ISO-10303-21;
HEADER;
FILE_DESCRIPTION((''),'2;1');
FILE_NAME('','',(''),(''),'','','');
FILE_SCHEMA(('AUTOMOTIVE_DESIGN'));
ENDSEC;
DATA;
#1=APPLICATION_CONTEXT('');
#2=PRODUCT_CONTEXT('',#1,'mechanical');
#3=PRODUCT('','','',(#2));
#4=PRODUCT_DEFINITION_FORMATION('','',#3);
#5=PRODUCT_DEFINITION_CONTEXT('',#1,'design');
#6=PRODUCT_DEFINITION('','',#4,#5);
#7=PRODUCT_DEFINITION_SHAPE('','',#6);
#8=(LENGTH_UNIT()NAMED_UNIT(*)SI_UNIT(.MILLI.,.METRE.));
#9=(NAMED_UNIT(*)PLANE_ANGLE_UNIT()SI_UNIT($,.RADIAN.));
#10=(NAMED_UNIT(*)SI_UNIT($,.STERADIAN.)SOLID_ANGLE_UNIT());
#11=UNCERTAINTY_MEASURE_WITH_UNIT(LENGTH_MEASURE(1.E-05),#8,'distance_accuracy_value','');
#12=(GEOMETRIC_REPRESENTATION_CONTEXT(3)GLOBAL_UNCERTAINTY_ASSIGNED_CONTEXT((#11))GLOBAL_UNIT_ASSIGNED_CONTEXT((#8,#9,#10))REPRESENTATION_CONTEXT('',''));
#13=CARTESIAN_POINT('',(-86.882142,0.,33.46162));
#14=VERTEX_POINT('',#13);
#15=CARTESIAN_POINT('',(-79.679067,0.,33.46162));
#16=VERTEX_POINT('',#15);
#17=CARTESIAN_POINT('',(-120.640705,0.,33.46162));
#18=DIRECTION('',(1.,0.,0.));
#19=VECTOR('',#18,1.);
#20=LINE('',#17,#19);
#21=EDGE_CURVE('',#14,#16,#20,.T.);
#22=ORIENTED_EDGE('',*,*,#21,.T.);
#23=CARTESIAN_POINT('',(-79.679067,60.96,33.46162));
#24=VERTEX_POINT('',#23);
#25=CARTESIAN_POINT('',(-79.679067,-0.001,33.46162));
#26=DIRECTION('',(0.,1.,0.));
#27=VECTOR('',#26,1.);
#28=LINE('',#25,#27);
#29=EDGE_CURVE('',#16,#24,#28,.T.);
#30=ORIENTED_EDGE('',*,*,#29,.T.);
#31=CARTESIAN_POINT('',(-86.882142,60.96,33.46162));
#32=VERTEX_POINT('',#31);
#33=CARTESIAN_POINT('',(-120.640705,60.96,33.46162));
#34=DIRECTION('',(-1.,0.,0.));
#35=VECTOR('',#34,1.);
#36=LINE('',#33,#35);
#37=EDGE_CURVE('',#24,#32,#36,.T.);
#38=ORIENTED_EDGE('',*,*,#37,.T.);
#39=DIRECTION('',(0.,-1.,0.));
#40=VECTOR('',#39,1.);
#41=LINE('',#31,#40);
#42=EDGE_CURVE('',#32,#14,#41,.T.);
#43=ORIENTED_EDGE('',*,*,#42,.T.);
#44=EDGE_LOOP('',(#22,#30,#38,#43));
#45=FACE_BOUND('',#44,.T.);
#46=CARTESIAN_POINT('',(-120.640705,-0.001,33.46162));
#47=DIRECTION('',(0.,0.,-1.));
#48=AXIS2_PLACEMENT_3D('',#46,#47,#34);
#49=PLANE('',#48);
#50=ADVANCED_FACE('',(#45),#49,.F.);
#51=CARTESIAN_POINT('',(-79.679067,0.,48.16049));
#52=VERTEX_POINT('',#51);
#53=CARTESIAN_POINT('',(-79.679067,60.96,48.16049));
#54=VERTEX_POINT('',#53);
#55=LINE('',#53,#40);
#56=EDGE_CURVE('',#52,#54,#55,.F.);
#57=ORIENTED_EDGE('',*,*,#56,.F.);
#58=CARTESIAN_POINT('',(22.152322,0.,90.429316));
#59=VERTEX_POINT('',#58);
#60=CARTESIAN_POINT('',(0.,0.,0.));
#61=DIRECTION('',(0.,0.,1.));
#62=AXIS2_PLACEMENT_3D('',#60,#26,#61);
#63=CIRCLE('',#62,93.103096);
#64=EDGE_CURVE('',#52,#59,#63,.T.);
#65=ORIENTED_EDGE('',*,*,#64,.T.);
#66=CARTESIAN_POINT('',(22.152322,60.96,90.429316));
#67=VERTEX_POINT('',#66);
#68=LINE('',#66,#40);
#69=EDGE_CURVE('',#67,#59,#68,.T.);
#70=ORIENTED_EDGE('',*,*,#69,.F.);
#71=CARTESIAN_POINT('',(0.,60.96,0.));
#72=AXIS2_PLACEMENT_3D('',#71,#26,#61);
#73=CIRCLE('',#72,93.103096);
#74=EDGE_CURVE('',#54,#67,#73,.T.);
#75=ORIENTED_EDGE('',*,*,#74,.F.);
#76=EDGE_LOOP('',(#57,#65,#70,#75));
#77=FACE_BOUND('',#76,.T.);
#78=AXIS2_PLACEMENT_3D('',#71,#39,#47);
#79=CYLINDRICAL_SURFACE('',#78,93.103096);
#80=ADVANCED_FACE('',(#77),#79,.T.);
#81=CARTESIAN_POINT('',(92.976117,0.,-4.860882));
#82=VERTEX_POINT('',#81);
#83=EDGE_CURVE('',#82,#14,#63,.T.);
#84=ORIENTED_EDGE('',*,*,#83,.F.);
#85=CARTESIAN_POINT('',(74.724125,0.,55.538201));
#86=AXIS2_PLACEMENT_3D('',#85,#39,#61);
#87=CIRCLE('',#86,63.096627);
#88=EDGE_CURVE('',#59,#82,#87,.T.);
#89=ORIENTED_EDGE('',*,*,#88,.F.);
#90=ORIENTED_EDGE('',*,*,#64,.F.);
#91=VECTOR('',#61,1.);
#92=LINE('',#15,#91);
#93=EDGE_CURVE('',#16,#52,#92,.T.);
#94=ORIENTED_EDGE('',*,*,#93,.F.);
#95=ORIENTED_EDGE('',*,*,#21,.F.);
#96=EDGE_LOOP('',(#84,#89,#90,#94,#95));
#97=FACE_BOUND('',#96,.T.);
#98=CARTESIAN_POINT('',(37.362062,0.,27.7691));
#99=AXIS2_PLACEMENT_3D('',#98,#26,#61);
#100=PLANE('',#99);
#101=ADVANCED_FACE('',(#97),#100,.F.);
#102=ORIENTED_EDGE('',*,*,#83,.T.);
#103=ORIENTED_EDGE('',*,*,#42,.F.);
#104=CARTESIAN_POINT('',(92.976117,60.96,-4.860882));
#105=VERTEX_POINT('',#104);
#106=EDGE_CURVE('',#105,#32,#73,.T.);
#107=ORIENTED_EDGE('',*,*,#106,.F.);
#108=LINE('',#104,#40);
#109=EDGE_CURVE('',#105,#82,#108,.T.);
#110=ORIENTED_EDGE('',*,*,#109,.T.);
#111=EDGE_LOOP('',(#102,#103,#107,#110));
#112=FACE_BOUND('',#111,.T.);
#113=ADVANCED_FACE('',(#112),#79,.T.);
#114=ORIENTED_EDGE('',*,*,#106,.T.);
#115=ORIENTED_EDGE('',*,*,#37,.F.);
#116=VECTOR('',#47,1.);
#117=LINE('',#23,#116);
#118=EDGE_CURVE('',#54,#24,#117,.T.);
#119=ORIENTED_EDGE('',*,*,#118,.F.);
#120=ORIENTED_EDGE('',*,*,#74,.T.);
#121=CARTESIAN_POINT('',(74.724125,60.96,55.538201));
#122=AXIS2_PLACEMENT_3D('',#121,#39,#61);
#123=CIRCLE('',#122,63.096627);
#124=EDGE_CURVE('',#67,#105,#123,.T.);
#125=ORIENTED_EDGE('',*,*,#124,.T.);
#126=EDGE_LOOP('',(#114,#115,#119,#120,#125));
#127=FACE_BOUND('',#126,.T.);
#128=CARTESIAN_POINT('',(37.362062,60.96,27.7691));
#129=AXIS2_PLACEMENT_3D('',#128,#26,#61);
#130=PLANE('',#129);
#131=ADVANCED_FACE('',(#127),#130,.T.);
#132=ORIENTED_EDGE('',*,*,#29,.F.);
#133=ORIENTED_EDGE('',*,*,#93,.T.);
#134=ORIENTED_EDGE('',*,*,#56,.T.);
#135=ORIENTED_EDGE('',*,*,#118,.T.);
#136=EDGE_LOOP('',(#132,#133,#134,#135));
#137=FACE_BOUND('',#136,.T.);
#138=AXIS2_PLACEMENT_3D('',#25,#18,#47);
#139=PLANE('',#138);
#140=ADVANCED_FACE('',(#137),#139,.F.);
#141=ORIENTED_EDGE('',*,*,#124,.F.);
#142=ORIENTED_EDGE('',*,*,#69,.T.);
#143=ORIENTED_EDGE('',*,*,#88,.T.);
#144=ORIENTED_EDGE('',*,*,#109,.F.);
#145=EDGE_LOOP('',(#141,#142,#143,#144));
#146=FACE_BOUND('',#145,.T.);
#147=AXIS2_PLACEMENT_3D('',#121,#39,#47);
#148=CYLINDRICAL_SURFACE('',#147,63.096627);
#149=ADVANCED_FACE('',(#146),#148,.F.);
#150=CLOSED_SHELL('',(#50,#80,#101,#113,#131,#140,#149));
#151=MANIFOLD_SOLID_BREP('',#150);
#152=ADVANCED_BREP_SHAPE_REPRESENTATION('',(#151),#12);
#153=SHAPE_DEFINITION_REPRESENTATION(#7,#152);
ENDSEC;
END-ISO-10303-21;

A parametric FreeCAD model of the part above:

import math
import FreeCAD as App
import Part
import Sketcher

V = App.Vector
Q = App.Units.Quantity


def add_polygon(sketch, points):
    """Adds a closed chain of lines whose ends are joined by coincident constraints."""
    first, n = sketch.GeometryCount, len(points)
    for a, b in zip(points, points[1:] + points[:1]):
        sketch.addGeometry(Part.LineSegment(App.Vector(*a, 0), App.Vector(*b, 0)), False)
    for i in range(n):
        sketch.addConstraint(Sketcher.Constraint("Coincident", first + i, 2, first + (i + 1) % n, 1))

doc = App.newDocument("Part")
params = doc.addObject("Spreadsheet::Sheet", "Params")
for row, (alias, value) in enumerate([
    ("pad1_length", "2.4 in"),
    ("pocket1_length", "2.4 in"),
], start=1):
    params.set(f"A{row}", alias)
    params.set(f"B{row}", "=" + value)
    params.setAlias(f"B{row}", alias)

body = doc.addObject("PartDesign::Body", "Body")

sketch1 = doc.addObject("Sketcher::SketchObject", "Sketch")
body.addObject(sketch1)
sketch1.AttachmentSupport = (doc.XZ_Plane, [""])
sketch1.MapMode = "FlatFace"
sketch1.addGeometry([
    Part.ArcOfCircle(Part.Circle(V(0, 0, 0), V(0, 0, 1), 93), math.radians(76), math.radians(357)),
    Part.ArcOfCircle(Part.Circle(V(75, 56, 0), V(0, 0, 1), 63), math.radians(146), math.radians(287)),
], False)
sketch1.addConstraint([
    Sketcher.Constraint("Coincident", 0, 1, 1, 1),
    Sketcher.Constraint("Coincident", 1, 2, 0, 2),
    Sketcher.Constraint("Coincident", 0, 3, -1, 1),
    Sketcher.Constraint("Radius", 0, Q("93.103096 mm")),
    Sketcher.Constraint("Radius", 1, Q("63.096627 mm")),
    Sketcher.Constraint("DistanceY", -1, 1, 1, 3, Q("55.538201 mm")),
    Sketcher.Constraint("DistanceX", -1, 1, 0, 1, Q("22.152322 mm")),
])
pad1 = doc.addObject("PartDesign::Pad", "Pad")
body.addObject(pad1)
pad1.Profile = sketch1
pad1.setExpression("Length", "Params.pad1_length")
pad1.Reversed = True

sketch2 = doc.addObject("Sketcher::SketchObject", "Sketch001")
body.addObject(sketch2)
sketch2.AttachmentSupport = (doc.XZ_Plane, [""])
sketch2.MapMode = "FlatFace"
sketch2.AttachmentOffset = App.Placement(V(0, 0, -2.4 * 25.4), App.Rotation())
add_polygon(sketch2, [(-121, 33), (-121, 67), (-80, 67), (-80, 33)])
sketch2.addConstraint([
    Sketcher.Constraint("Vertical", 0),
    Sketcher.Constraint("Horizontal", 1),
    Sketcher.Constraint("Vertical", 2),
    Sketcher.Constraint("Horizontal", 3),
    Sketcher.Constraint("DistanceY", 0, 1, 0, 2, Q("33.750082 mm")),
    Sketcher.Constraint("DistanceY", -1, 1, 0, 2, Q("67.211702 mm")),
    Sketcher.Constraint("DistanceX", 1, 1, 1, 2, Q("40.961638 mm")),
    Sketcher.Constraint("DistanceX", 0, 2, -1, 1, Q("120.640705 mm")),
])
pocket1 = doc.addObject("PartDesign::Pocket", "Pocket")
body.addObject(pocket1)
pocket1.Profile = sketch2
pocket1.setExpression("Length", "Params.pocket1_length")
pocket1.Reversed = True

doc.recompute()
